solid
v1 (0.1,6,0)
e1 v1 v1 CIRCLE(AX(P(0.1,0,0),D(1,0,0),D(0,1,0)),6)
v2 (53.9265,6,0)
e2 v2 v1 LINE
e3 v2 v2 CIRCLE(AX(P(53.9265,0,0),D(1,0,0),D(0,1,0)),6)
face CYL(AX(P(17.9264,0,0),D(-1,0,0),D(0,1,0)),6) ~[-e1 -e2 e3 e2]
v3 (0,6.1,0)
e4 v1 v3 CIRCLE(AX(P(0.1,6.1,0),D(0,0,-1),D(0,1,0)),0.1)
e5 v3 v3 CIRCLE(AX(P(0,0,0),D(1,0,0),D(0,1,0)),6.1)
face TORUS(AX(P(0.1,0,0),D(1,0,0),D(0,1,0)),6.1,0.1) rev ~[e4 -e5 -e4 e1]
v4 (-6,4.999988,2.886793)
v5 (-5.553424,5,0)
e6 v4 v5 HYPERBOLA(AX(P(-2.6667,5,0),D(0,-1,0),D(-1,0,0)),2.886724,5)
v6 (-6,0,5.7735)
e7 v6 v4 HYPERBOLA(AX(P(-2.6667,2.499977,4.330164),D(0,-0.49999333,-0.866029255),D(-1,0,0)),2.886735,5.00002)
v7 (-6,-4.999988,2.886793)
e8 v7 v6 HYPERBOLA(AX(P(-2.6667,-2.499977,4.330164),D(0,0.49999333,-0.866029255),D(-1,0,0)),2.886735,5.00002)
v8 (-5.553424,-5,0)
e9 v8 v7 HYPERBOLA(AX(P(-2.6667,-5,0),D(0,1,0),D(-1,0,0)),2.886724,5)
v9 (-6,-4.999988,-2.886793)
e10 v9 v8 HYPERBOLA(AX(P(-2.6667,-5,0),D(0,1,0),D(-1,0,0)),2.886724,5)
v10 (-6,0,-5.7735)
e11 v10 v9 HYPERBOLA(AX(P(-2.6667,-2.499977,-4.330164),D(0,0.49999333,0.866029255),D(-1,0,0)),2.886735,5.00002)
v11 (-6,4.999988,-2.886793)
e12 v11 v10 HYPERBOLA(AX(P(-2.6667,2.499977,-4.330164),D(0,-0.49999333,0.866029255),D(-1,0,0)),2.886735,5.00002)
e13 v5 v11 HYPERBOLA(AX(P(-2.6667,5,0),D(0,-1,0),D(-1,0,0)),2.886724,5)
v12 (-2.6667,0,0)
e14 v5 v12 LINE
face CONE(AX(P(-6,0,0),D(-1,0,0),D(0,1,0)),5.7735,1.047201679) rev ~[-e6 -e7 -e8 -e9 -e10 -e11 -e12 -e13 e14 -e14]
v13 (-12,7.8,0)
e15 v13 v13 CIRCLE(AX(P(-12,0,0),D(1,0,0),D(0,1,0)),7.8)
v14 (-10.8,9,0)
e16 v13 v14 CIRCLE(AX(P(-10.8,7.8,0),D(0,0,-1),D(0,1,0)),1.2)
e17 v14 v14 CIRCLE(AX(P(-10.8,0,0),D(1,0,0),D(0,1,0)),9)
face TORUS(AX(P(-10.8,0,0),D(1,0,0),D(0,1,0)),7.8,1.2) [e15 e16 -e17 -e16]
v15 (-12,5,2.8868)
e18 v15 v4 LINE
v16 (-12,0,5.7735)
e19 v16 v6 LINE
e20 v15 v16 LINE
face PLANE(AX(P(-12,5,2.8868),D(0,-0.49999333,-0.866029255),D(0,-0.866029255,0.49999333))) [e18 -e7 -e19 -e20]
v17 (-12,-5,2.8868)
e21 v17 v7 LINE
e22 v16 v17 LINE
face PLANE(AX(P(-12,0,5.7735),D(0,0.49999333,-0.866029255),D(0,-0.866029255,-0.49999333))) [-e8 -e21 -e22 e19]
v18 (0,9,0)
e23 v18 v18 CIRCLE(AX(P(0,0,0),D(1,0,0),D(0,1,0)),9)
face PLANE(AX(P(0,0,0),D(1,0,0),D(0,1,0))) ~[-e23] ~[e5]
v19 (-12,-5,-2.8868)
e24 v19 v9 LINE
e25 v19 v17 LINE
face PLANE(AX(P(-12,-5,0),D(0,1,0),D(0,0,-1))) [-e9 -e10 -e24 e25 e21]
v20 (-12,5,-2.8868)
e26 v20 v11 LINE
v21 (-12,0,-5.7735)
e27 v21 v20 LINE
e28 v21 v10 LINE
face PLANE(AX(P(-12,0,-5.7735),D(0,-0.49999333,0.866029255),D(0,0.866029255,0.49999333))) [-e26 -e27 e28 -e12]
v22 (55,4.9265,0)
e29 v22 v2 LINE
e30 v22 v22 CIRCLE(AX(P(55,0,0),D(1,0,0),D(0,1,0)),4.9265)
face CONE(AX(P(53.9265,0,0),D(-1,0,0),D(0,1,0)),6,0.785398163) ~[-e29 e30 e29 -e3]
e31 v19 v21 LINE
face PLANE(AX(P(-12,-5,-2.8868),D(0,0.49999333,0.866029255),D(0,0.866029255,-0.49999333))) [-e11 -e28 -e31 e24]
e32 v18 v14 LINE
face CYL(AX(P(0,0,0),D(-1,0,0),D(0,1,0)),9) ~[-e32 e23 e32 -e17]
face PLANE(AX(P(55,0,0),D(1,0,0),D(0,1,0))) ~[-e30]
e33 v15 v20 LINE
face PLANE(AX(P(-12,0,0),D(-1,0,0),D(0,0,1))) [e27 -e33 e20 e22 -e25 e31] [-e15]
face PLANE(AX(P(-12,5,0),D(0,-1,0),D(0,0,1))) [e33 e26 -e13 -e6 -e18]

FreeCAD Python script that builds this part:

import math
import FreeCAD as App
import Part
import Sketcher
from FreeCAD import Vector
Q = App.Units.Quantity


def edges_at(feature, points):
    """Names of the edges that pass closest to the given points."""
    edges = feature.Shape.Edges
    near = lambda p: min(range(len(edges)), key=lambda i: edges[i].distToShape(Part.Vertex(*p))[0])
    return sorted({f"Edge{near(p) + 1}" for p in points})


def add_polygon(sketch, points):
    """Adds a closed chain of lines whose ends are joined by coincident constraints."""
    first, n = sketch.GeometryCount, len(points)
    for a, b in zip(points, points[1:] + points[:1]):
        sketch.addGeometry(Part.LineSegment(App.Vector(*a, 0), App.Vector(*b, 0)), False)
    for i in range(n):
        sketch.addConstraint(Sketcher.Constraint("Coincident", first + i, 2, first + (i + 1) % n, 1))

doc = App.newDocument("Part")
params = doc.addObject("Spreadsheet::Sheet", "Params")
for row, (alias, value) in enumerate([
    ("sketch1_width", "55 mm"),
    ("sketch1_width2", "12 mm"),
    ("sketch1_width3", "6 mm"),
    ("sketch1_height", "3 mm"),
    ("revolution_angle", "360 deg"),
    ("pad1_length", "6.4466 mm"),
    ("fillet_radius", "1.2 mm"),
    ("chamfer_size", "1.0735 mm"),
    ("chamfer_size2", "1.0735 mm"),
    ("fillet2_radius", "0.1 mm"),
], start=1):
    params.set(f"A{row}", alias)
    params.set(f"B{row}", "=" + value)
    params.setAlias(f"B{row}", alias)

body = doc.addObject("PartDesign::Body", "Body")

# Sketch on XY plane
sketch1 = body.newObject("Sketcher::SketchObject", "Sketch")
sketch1.AttachmentSupport = (doc.getObject("XY_Plane"), [""])
sketch1.MapMode = "FlatFace"
add_polygon(sketch1, [(-6, 5.8), (-2.7, 0), (55, 0), (55, 6), (0, 6), (0, 9), (-12, 9), (-12, 5.8)])  # lines 0-7
sketch1.addConstraint(Sketcher.Constraint("Horizontal", 1))
sketch1.addConstraint(Sketcher.Constraint("Vertical", 2))
sketch1.addConstraint(Sketcher.Constraint("Horizontal", 3))
sketch1.addConstraint(Sketcher.Constraint("Vertical", 4))
sketch1.addConstraint(Sketcher.Constraint("Horizontal", 5))
sketch1.addConstraint(Sketcher.Constraint("Vertical", 6))
sketch1.addConstraint(Sketcher.Constraint("Horizontal", 7))
sketch1.addConstraint(Sketcher.Constraint("PointOnObject", 0, 2, -1))
sketch1.addConstraint(Sketcher.Constraint("PointOnObject", 3, 2, -2))
sketch1.addConstraint(Sketcher.Constraint("Equal", 7, 2))
sketch1.addConstraint(Sketcher.Constraint("DistanceX", 3, 2, 3, 1, Q("55 mm")))
sketch1.addConstraint(Sketcher.Constraint("DistanceX", 5, 2, 5, 1, Q("12 mm")))
sketch1.addConstraint(Sketcher.Constraint("DistanceX", 7, 1, 7, 2, Q("6 mm")))
sketch1.addConstraint(Sketcher.Constraint("Angle", 0, Q("-60.0002 deg")))
sketch1.addConstraint(Sketcher.Constraint("DistanceY", 4, 1, 4, 2, Q("3 mm")))
sketch1.addConstraint(Sketcher.Constraint("DistanceX", 1, 1, 1, 2, Q("57.6667 mm")))
sketch1.setExpression("Constraints[18]", "Params.sketch1_width")
sketch1.setExpression("Constraints[19]", "Params.sketch1_width2")
sketch1.setExpression("Constraints[20]", "Params.sketch1_width3")
sketch1.setExpression("Constraints[22]", "Params.sketch1_height")
revolution = body.newObject("PartDesign::Revolution", "Revolution")
revolution.Profile = sketch1
revolution.ReferenceAxis = (sketch1, ["H_Axis"])
revolution.setExpression("Angle", "Params.revolution_angle")

# Sketch on YZ plane
sketch2 = body.newObject("Sketcher::SketchObject", "Sketch001")
sketch2.AttachmentSupport = (doc.getObject("YZ_Plane"), [""])
sketch2.MapMode = "FlatFace"
sketch2.AttachmentOffset = App.Placement(Vector(0, 0, -12), App.Rotation())
sketch2.addGeometry(Part.LineSegment(Vector(5, 3, 0), Vector(0, 6, 0)), False)
sketch2.addGeometry(Part.ArcOfCircle(Part.Circle(Vector(0, 0, 0), Vector(0, 0, 1), 6), math.radians(30), math.radians(90)), False)
sketch2.addGeometry(Part.ArcOfCircle(Part.Circle(Vector(0, 0, 0), Vector(0, 0, 1), 6), math.radians(90), math.radians(150)), False)
sketch2.addGeometry(Part.LineSegment(Vector(0, 6, 0), Vector(-5, 3, 0)), False)
sketch2.addGeometry(Part.ArcOfCircle(Part.Circle(Vector(0, 0, 0), Vector(0, 0, 1), 6), math.radians(-30), math.radians(30)), False)
sketch2.addGeometry(Part.LineSegment(Vector(5, 3, 0), Vector(5, -3, 0)), False)
sketch2.addGeometry(Part.LineSegment(Vector(-5, 3, 0), Vector(-5, -3, 0)), False)
sketch2.addGeometry(Part.ArcOfCircle(Part.Circle(Vector(0, 0, 0), Vector(0, 0, 1), 6), math.radians(150), math.radians(210)), False)
sketch2.addGeometry(Part.LineSegment(Vector(-5, -3, 0), Vector(0, -6, 0)), False)
sketch2.addGeometry(Part.ArcOfCircle(Part.Circle(Vector(0, 0, 0), Vector(0, 0, 1), 6), math.radians(-150), math.radians(-90)), False)
sketch2.addGeometry(Part.ArcOfCircle(Part.Circle(Vector(0, 0, 0), Vector(0, 0, 1), 6), math.radians(-90), math.radians(-30)), False)
sketch2.addGeometry(Part.LineSegment(Vector(0, -6, 0), Vector(5, -3, 0)), False)
sketch2.addConstraint(Sketcher.Constraint("Coincident", 0, 1, 1, 1))
sketch2.addConstraint(Sketcher.Constraint("Coincident", 1, 2, 0, 2))
sketch2.addConstraint(Sketcher.Constraint("Coincident", 2, 1, 3, 1))
sketch2.addConstraint(Sketcher.Constraint("Coincident", 3, 2, 2, 2))
sketch2.addConstraint(Sketcher.Constraint("Coincident", 4, 1, 5, 2))
sketch2.addConstraint(Sketcher.Constraint("Coincident", 5, 1, 4, 2))
sketch2.addConstraint(Sketcher.Constraint("Coincident", 6, 1, 7, 1))
sketch2.addConstraint(Sketcher.Constraint("Coincident", 7, 2, 6, 2))
sketch2.addConstraint(Sketcher.Constraint("Coincident", 8, 1, 9, 1))
sketch2.addConstraint(Sketcher.Constraint("Coincident", 9, 2, 8, 2))
sketch2.addConstraint(Sketcher.Constraint("Coincident", 10, 1, 11, 1))
sketch2.addConstraint(Sketcher.Constraint("Coincident", 11, 2, 10, 2))
sketch2.addConstraint(Sketcher.Constraint("Vertical", 5))
sketch2.addConstraint(Sketcher.Constraint("Vertical", 6))
sketch2.addConstraint(Sketcher.Constraint("Coincident", 1, 3, -1, 1))
sketch2.addConstraint(Sketcher.Constraint("Coincident", 2, 3, -1, 1))
sketch2.addConstraint(Sketcher.Constraint("Coincident", 4, 3, -1, 1))
sketch2.addConstraint(Sketcher.Constraint("Coincident", 7, 3, -1, 1))
sketch2.addConstraint(Sketcher.Constraint("Coincident", 9, 3, -1, 1))
sketch2.addConstraint(Sketcher.Constraint("Coincident", 10, 3, -1, 1))
sketch2.addConstraint(Sketcher.Constraint("Coincident", 2, 1, 1, 2))
sketch2.addConstraint(Sketcher.Constraint("Coincident", 5, 1, 0, 1))
sketch2.addConstraint(Sketcher.Constraint("Coincident", 6, 1, 3, 2))
sketch2.addConstraint(Sketcher.Constraint("Coincident", 8, 1, 7, 2))
sketch2.addConstraint(Sketcher.Constraint("Coincident", 10, 1, 9, 2))
sketch2.addConstraint(Sketcher.Constraint("PointOnObject", 1, 2, -2))
sketch2.addConstraint(Sketcher.Constraint("PointOnObject", 9, 2, -2))
sketch2.addConstraint(Sketcher.Constraint("Parallel", 0, 8))
sketch2.addConstraint(Sketcher.Constraint("Parallel", 3, 11))
sketch2.addConstraint(Sketcher.Constraint("Angle", 0, Q("150.0004 deg")))
sketch2.addConstraint(Sketcher.Constraint("DistanceX", -1, 1, 0, 1, Q("5 mm")))
pad1 = body.newObject("PartDesign::Pad", "Pad")
pad1.Profile = sketch2
pad1.setExpression("Length", "Params.pad1_length")
doc.recompute()

fillet = body.newObject("PartDesign::Fillet", "Fillet")
fillet.Base = (pad1, edges_at(pad1, [(-12, -9, 0)]))
fillet.setExpression("Radius", "Params.fillet_radius")
doc.recompute()

chamfer = body.newObject("PartDesign::Chamfer", "Chamfer")
chamfer.Base = (fillet, edges_at(fillet, [(55, -6, 0)]))
chamfer.ChamferType = "Two distances"
chamfer.setExpression("Size", "Params.chamfer_size")
chamfer.setExpression("Size2", "Params.chamfer_size2")
doc.recompute()

fillet2 = body.newObject("PartDesign::Fillet", "Fillet001")
fillet2.Base = (chamfer, edges_at(chamfer, [(0, -6, 0)]))
fillet2.setExpression("Radius", "Params.fillet2_radius")

doc.recompute()
